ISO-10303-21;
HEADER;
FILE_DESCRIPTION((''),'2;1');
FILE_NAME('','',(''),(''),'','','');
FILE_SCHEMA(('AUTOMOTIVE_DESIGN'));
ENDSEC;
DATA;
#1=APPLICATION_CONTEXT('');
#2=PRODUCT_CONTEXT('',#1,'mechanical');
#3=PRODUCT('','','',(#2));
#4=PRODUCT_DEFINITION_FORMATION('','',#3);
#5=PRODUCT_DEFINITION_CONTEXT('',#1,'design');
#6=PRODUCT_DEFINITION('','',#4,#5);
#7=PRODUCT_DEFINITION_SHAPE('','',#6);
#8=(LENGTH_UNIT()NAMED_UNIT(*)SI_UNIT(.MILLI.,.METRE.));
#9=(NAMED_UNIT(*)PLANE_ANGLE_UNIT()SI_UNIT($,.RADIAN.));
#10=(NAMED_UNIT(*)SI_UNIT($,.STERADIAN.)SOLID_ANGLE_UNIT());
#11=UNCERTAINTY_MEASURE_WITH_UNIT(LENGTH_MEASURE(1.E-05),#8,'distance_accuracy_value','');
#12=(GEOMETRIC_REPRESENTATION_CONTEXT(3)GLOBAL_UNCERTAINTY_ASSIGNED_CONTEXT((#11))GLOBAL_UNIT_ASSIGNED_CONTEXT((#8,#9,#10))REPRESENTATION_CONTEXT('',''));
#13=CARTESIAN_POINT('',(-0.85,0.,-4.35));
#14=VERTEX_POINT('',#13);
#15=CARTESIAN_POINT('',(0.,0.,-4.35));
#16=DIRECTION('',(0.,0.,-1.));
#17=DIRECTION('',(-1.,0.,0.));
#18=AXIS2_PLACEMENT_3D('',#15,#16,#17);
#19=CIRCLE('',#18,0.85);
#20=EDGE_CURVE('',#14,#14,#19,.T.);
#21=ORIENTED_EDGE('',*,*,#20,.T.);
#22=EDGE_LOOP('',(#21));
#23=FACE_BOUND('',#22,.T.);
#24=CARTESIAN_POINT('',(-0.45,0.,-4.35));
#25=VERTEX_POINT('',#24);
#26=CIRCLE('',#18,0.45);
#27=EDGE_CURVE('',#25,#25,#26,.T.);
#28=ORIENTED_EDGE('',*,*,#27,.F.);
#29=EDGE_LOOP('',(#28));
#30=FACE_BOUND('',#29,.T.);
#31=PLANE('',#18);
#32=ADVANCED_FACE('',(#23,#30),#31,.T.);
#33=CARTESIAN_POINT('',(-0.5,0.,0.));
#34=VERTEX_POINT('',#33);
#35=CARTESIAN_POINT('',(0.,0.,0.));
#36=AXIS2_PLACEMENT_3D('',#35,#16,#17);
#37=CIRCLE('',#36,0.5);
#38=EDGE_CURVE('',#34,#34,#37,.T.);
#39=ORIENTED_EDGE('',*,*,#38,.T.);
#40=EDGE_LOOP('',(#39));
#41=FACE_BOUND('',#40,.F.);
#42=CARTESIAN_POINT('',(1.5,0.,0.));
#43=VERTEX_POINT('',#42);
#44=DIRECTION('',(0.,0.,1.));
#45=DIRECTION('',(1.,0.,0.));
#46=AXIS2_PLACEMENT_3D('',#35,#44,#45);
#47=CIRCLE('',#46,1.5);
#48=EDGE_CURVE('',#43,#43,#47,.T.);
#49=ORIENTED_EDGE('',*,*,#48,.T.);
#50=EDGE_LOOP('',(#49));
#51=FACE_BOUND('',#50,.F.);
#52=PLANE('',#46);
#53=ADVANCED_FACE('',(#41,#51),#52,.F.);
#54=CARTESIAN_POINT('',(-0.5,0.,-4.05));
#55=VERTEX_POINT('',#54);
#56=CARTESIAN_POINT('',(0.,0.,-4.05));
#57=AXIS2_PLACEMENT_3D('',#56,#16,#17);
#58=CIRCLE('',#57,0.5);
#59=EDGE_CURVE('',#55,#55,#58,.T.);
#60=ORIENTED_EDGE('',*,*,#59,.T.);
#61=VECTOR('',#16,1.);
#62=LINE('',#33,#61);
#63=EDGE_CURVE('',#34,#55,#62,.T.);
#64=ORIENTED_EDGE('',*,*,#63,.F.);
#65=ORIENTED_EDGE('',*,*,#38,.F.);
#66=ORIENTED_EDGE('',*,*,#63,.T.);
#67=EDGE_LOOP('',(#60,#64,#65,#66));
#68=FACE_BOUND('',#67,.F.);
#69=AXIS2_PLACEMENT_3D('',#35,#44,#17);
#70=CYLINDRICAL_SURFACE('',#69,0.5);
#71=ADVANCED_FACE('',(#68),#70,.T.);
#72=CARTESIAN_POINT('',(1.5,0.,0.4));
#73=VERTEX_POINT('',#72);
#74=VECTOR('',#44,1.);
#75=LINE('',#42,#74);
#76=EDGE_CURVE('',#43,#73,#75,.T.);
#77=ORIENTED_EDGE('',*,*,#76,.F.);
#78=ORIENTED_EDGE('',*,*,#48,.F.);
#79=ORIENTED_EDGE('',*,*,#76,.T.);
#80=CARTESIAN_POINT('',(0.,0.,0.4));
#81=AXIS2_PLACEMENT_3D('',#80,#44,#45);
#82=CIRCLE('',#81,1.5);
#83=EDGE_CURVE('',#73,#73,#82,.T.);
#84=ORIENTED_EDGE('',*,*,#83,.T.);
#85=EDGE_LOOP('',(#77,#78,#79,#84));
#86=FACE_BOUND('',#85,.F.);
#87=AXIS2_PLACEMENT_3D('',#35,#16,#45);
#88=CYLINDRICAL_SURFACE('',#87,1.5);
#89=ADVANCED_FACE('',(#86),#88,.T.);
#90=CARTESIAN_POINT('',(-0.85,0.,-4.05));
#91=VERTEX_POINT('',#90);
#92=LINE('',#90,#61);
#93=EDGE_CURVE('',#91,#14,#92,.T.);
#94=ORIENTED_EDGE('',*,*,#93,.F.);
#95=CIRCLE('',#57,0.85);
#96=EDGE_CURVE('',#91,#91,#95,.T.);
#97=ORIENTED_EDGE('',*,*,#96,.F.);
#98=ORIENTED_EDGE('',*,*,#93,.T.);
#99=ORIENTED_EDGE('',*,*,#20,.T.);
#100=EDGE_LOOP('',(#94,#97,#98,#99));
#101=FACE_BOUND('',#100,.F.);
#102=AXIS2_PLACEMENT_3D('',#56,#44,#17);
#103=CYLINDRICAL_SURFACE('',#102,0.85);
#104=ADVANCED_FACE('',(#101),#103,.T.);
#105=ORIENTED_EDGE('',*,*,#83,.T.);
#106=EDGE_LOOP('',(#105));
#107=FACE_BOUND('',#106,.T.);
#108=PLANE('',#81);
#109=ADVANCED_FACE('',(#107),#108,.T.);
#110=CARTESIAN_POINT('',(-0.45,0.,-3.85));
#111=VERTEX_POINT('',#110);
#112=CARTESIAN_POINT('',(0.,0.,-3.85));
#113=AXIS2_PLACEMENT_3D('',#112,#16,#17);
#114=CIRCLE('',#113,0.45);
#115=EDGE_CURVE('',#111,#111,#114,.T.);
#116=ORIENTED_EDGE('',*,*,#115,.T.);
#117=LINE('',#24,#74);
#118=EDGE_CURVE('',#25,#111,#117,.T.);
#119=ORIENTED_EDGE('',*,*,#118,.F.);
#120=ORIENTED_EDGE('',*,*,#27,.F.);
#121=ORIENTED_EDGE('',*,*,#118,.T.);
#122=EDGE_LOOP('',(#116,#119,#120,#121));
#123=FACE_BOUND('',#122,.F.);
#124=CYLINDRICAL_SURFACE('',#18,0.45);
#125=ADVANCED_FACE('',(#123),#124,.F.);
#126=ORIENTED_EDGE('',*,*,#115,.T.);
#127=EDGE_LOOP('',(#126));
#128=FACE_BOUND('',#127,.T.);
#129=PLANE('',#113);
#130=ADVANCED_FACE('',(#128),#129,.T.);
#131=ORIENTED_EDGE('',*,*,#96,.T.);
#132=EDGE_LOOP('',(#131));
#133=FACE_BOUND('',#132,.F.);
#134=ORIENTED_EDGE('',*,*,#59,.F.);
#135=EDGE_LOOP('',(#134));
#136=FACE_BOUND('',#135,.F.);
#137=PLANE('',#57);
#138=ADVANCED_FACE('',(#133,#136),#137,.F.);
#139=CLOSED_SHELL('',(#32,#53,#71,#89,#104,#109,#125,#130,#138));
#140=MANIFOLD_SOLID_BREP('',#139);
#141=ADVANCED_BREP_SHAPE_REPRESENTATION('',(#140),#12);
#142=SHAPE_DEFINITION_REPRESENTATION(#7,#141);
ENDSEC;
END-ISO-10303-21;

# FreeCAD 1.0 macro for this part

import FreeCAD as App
import Part
import Sketcher
from FreeCAD import Vector

doc = App.newDocument("Part")
params = doc.addObject("Spreadsheet::Sheet", "Params")
for row, (alias, value) in enumerate([
    ("sketch1_diameter", "3 mm"),
    ("pad1_length", "0.4 mm"),
    ("sketch2_diameter", "1 mm"),
    ("pad2_length", "4.05 mm"),
    ("sketch3_diameter", "1.7 mm"),
    ("pad3_length", "0.3 mm"),
    ("sketch4_diameter", "0.9 mm"),
    ("pocket1_length", "0.5 mm"),
], start=1):
    params.set(f"A{row}", alias)
    params.set(f"B{row}", "=" + value)
    params.setAlias(f"B{row}", alias)

body = doc.addObject("PartDesign::Body", "Body")

sketch1 = body.newObject("Sketcher::SketchObject", "Sketch")
sketch1.AttachmentSupport = (doc.getObject("XY_Plane"), [""])
sketch1.MapMode = "FlatFace"
sketch1.addGeometry(Part.Circle(Vector(0, 0, 0), Vector(0, 0, 1), 1.5), False)
sketch1.addConstraint([
    Sketcher.Constraint("Coincident", 0, 3, -1, 1),
    Sketcher.Constraint("Diameter", 0, 3.0),
])
sketch1.setExpression("Constraints[1]", "Params.sketch1_diameter")
pad1 = body.newObject("PartDesign::Pad", "Pad")
pad1.Profile = sketch1
pad1.setExpression("Length", "Params.pad1_length")

sketch2 = body.newObject("Sketcher::SketchObject", "Sketch001")
sketch2.AttachmentSupport = (doc.getObject("XY_Plane"), [""])
sketch2.MapMode = "FlatFace"
sketch2.addGeometry(Part.Circle(Vector(0, 0, 0), Vector(0, 0, 1), 0.5), False)
sketch2.addConstraint([
    Sketcher.Constraint("Coincident", 0, 3, -1, 1),
    Sketcher.Constraint("Diameter", 0, 1.0),
])
sketch2.setExpression("Constraints[1]", "Params.sketch2_diameter")
pad2 = body.newObject("PartDesign::Pad", "Pad001")
pad2.Profile = sketch2
pad2.setExpression("Length", "Params.pad2_length")
pad2.Reversed = True

sketch3 = body.newObject("Sketcher::SketchObject", "Sketch002")
sketch3.AttachmentSupport = (doc.getObject("XY_Plane"), [""])
sketch3.MapMode = "FlatFace"
sketch3.AttachmentOffset = App.Placement(Vector(0, 0, -4.05), App.Rotation())
sketch3.addGeometry(Part.Circle(Vector(0, 0, 0), Vector(0, 0, 1), 0.8), False)
sketch3.addConstraint([
    Sketcher.Constraint("Coincident", 0, 3, -1, 1),
    Sketcher.Constraint("Diameter", 0, 1.7),
])
sketch3.setExpression("Constraints[1]", "Params.sketch3_diameter")
pad3 = body.newObject("PartDesign::Pad", "Pad002")
pad3.Profile = sketch3
pad3.setExpression("Length", "Params.pad3_length")
pad3.Reversed = True

sketch4 = body.newObject("Sketcher::SketchObject", "Sketch003")
sketch4.AttachmentSupport = (doc.getObject("XY_Plane"), [""])
sketch4.MapMode = "FlatFace"
sketch4.AttachmentOffset = App.Placement(Vector(0, 0, -4.35), App.Rotation())
sketch4.addGeometry(Part.Circle(Vector(0, 0, 0), Vector(0, 0, 1), 0.45), False)
sketch4.addConstraint([
    Sketcher.Constraint("Coincident", 0, 3, -1, 1),
    Sketcher.Constraint("Diameter", 0, 0.9),
])
sketch4.setExpression("Constraints[1]", "Params.sketch4_diameter")
pocket1 = body.newObject("PartDesign::Pocket", "Pocket")
pocket1.Profile = sketch4
pocket1.setExpression("Length", "Params.pocket1_length")
pocket1.Reversed = True

doc.recompute()
